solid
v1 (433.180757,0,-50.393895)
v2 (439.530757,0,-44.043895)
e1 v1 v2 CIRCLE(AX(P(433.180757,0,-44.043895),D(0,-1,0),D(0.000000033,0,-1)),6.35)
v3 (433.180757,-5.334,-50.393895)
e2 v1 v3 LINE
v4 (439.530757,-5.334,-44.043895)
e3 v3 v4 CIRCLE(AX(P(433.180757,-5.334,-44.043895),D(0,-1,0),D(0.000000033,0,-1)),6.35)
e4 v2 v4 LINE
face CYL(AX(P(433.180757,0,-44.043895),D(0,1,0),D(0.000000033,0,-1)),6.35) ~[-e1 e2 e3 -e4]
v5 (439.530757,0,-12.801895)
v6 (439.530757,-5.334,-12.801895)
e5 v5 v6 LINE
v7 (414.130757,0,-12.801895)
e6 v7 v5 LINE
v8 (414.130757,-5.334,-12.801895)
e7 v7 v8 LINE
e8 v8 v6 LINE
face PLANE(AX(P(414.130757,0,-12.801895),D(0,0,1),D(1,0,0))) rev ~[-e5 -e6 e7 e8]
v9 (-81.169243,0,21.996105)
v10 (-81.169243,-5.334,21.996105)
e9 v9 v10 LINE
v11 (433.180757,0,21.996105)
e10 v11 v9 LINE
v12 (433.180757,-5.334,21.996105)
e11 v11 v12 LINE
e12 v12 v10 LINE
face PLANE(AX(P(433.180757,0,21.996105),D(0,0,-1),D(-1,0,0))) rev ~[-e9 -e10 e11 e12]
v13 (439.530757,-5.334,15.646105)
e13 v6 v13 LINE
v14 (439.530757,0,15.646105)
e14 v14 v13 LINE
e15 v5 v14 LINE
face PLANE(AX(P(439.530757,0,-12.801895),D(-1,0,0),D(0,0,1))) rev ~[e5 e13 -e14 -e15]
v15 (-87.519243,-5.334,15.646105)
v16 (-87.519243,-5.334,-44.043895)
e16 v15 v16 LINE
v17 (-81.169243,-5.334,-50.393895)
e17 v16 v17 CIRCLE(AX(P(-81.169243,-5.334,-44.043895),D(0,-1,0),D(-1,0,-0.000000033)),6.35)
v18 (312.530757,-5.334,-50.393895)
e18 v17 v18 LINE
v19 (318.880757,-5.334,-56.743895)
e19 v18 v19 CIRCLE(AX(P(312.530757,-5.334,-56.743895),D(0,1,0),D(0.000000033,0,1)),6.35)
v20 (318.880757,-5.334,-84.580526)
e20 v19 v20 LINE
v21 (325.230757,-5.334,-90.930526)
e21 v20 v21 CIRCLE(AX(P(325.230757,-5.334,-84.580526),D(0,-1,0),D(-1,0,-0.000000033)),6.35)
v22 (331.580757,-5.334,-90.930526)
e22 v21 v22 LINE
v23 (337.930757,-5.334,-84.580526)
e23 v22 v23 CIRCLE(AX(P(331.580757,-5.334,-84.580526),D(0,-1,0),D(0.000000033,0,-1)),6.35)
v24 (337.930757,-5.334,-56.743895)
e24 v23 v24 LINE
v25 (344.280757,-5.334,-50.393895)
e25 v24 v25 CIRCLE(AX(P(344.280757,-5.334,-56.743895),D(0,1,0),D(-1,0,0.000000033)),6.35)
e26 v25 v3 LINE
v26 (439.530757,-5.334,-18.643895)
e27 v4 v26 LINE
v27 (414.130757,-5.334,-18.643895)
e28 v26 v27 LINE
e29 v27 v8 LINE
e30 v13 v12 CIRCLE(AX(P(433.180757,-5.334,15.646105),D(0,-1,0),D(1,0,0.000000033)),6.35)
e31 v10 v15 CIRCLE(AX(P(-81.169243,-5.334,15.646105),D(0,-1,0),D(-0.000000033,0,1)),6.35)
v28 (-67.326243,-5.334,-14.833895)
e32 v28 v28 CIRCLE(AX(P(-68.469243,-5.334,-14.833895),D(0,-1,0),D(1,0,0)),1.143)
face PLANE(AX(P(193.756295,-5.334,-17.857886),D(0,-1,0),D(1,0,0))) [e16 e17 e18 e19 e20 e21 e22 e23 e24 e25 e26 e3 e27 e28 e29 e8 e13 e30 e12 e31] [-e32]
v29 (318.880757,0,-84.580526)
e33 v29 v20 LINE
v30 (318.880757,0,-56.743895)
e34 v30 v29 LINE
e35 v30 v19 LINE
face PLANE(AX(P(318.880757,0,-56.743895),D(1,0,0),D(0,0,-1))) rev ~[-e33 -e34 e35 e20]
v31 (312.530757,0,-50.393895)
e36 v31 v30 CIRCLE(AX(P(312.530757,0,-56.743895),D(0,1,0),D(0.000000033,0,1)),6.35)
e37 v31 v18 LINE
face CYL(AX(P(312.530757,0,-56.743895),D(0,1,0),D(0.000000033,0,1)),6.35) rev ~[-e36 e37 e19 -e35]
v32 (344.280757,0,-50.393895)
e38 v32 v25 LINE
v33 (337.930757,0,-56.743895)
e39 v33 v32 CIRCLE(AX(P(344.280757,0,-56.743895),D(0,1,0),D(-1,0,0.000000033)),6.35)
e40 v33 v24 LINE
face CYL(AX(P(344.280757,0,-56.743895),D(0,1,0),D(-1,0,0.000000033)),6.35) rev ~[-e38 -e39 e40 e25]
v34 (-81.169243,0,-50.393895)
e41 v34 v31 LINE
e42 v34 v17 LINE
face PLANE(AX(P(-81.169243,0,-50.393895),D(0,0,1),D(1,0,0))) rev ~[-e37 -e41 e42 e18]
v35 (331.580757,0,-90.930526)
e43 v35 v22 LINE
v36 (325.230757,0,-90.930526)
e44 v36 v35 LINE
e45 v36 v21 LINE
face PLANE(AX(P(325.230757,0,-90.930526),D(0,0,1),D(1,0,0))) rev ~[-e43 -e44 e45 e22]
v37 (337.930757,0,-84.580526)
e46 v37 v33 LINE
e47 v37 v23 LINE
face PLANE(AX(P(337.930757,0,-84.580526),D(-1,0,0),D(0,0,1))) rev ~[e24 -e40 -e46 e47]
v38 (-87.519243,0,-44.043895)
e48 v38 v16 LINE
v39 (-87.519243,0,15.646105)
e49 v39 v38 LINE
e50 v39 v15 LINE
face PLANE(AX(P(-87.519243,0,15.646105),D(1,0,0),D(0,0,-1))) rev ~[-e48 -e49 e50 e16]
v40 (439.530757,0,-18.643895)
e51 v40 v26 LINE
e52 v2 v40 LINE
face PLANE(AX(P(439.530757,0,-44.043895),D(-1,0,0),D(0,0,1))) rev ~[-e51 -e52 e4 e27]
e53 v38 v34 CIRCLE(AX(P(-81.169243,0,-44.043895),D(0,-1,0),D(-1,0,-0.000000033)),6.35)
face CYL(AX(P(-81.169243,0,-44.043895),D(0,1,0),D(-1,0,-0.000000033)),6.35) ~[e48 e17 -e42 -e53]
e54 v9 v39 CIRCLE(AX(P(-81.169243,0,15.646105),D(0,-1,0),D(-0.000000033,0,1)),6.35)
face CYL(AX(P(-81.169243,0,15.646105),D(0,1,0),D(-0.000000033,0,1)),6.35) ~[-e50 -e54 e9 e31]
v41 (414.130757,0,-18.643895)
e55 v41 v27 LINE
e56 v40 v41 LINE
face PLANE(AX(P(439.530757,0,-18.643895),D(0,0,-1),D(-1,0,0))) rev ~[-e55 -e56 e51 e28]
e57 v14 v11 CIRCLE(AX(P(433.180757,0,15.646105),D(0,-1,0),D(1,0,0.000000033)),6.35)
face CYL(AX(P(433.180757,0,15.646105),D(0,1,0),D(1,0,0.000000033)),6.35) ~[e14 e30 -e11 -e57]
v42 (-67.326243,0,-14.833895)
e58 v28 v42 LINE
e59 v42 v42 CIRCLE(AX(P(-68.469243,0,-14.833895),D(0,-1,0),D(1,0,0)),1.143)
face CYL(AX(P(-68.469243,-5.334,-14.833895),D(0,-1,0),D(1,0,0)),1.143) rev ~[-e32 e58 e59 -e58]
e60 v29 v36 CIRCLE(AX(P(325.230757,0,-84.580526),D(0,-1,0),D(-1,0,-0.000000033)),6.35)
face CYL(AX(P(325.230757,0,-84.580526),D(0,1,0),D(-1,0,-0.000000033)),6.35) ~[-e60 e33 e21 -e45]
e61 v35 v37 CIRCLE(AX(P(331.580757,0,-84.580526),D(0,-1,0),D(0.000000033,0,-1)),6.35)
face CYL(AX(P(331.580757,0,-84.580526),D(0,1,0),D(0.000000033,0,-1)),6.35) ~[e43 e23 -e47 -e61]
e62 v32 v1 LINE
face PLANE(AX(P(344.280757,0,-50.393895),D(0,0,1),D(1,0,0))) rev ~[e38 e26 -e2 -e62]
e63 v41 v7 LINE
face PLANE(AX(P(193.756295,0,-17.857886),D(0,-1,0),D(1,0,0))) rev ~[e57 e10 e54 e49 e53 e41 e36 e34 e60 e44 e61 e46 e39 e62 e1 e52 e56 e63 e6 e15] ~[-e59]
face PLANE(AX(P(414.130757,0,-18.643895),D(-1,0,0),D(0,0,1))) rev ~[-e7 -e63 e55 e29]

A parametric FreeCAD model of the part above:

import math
import FreeCAD as App
import Part
import Sketcher

V = App.Vector
Q = App.Units.Quantity

doc = App.newDocument("Part")
body = doc.addObject("PartDesign::Body", "Body")

sketch1 = doc.addObject("Sketcher::SketchObject", "Sketch")
body.addObject(sketch1)
sketch1.AttachmentSupport = (doc.XZ_Plane, [""])
sketch1.MapMode = "FlatFace"
sketch1.addGeometry(Part.LineSegment(V(433, 22, 0), V(-81, 22, 0)), False)
sketch1.addGeometry(Part.ArcOfCircle(Part.Circle(V(-81, 16, 0), V(0, 0, 1), 6), math.radians(90), math.radians(180)), False)
sketch1.addGeometry(Part.LineSegment(V(-88, 16, 0), V(-88, -44, 0)), False)
sketch1.addGeometry(Part.ArcOfCircle(Part.Circle(V(-81, -44, 0), V(0, 0, 1), 6), math.radians(-180), math.radians(-90)), False)
sketch1.addGeometry(Part.LineSegment(V(-81, -50, 0), V(313, -50, 0)), False)
sketch1.addGeometry(Part.ArcOfCircle(Part.Circle(V(313, -57, 0), V(0, 0, 1), 6), math.radians(0), math.radians(90)), False)
sketch1.addGeometry(Part.LineSegment(V(319, -57, 0), V(319, -85, 0)), False)
sketch1.addGeometry(Part.ArcOfCircle(Part.Circle(V(325, -85, 0), V(0, 0, 1), 6), math.radians(-180), math.radians(-90)), False)
sketch1.addGeometry(Part.LineSegment(V(325, -91, 0), V(332, -91, 0)), False)
sketch1.addGeometry(Part.ArcOfCircle(Part.Circle(V(332, -85, 0), V(0, 0, 1), 6), math.radians(-90), math.radians(0)), False)
sketch1.addGeometry(Part.LineSegment(V(338, -85, 0), V(338, -57, 0)), False)
sketch1.addGeometry(Part.ArcOfCircle(Part.Circle(V(344, -57, 0), V(0, 0, 1), 6), math.radians(90), math.radians(180)), False)
sketch1.addGeometry(Part.LineSegment(V(344, -50, 0), V(433, -50, 0)), False)
sketch1.addGeometry(Part.ArcOfCircle(Part.Circle(V(433, -44, 0), V(0, 0, 1), 6), math.radians(-90), math.radians(0)), False)
sketch1.addGeometry(Part.LineSegment(V(440, -44, 0), V(440, -19, 0)), False)
sketch1.addGeometry(Part.LineSegment(V(440, -19, 0), V(414, -19, 0)), False)
sketch1.addGeometry(Part.LineSegment(V(414, -19, 0), V(414, -13, 0)), False)
sketch1.addGeometry(Part.LineSegment(V(414, -13, 0), V(440, -13, 0)), False)
sketch1.addGeometry(Part.LineSegment(V(440, -13, 0), V(440, 16, 0)), False)
sketch1.addGeometry(Part.ArcOfCircle(Part.Circle(V(433, 16, 0), V(0, 0, 1), 6), math.radians(0), math.radians(90)), False)
sketch1.addConstraint(Sketcher.Constraint("Tangent", 0, 2, 1, 1))
sketch1.addConstraint(Sketcher.Constraint("Tangent", 1, 2, 2, 1))
sketch1.addConstraint(Sketcher.Constraint("Tangent", 2, 2, 3, 1))
sketch1.addConstraint(Sketcher.Constraint("Tangent", 3, 2, 4, 1))
sketch1.addConstraint(Sketcher.Constraint("Tangent", 4, 2, 5, 2))
sketch1.addConstraint(Sketcher.Constraint("Tangent", 5, 1, 6, 1))
sketch1.addConstraint(Sketcher.Constraint("Tangent", 6, 2, 7, 1))
sketch1.addConstraint(Sketcher.Constraint("Tangent", 7, 2, 8, 1))
sketch1.addConstraint(Sketcher.Constraint("Tangent", 8, 2, 9, 1))
sketch1.addConstraint(Sketcher.Constraint("Tangent", 9, 2, 10, 1))
sketch1.addConstraint(Sketcher.Constraint("Tangent", 10, 2, 11, 2))
sketch1.addConstraint(Sketcher.Constraint("Tangent", 11, 1, 12, 1))
sketch1.addConstraint(Sketcher.Constraint("Tangent", 12, 2, 13, 1))
sketch1.addConstraint(Sketcher.Constraint("Tangent", 13, 2, 14, 1))
sketch1.addConstraint(Sketcher.Constraint("Coincident", 14, 2, 15, 1))
sketch1.addConstraint(Sketcher.Constraint("Coincident", 15, 2, 16, 1))
sketch1.addConstraint(Sketcher.Constraint("Coincident", 16, 2, 17, 1))
sketch1.addConstraint(Sketcher.Constraint("Coincident", 17, 2, 18, 1))
sketch1.addConstraint(Sketcher.Constraint("Tangent", 18, 2, 19, 1))
sketch1.addConstraint(Sketcher.Constraint("Tangent", 19, 2, 0, 1))
sketch1.addConstraint(Sketcher.Constraint("Horizontal", 0))
sketch1.addConstraint(Sketcher.Constraint("Vertical", 2))
sketch1.addConstraint(Sketcher.Constraint("Horizontal", 4))
sketch1.addConstraint(Sketcher.Constraint("Vertical", 6))
sketch1.addConstraint(Sketcher.Constraint("Horizontal", 8))
sketch1.addConstraint(Sketcher.Constraint("Vertical", 10))
sketch1.addConstraint(Sketcher.Constraint("Horizontal", 12))
sketch1.addConstraint(Sketcher.Constraint("Vertical", 14))
sketch1.addConstraint(Sketcher.Constraint("Horizontal", 15))
sketch1.addConstraint(Sketcher.Constraint("Vertical", 16))
sketch1.addConstraint(Sketcher.Constraint("Horizontal", 17))
sketch1.addConstraint(Sketcher.Constraint("Vertical", 18))
sketch1.addConstraint(Sketcher.Constraint("Equal", 1, 3))
sketch1.addConstraint(Sketcher.Constraint("Equal", 3, 5))
sketch1.addConstraint(Sketcher.Constraint("Equal", 5, 7))
sketch1.addConstraint(Sketcher.Constraint("Equal", 7, 9))
sketch1.addConstraint(Sketcher.Constraint("Equal", 9, 11))
sketch1.addConstraint(Sketcher.Constraint("Equal", 11, 13))
sketch1.addConstraint(Sketcher.Constraint("Equal", 13, 19))
sketch1.addConstraint(Sketcher.Constraint("Horizontal", 5, 3, 11, 3))
sketch1.addConstraint(Sketcher.Constraint("Vertical", 13, 3, 19, 3))
sketch1.addConstraint(Sketcher.Constraint("Equal", 17, 14))
sketch1.addConstraint(Sketcher.Constraint("DistanceX", 15, 2, 15, 1, Q("1 in")))
sketch1.addConstraint(Sketcher.Constraint("Radius", 1, Q("0.25 in")))
sketch1.addConstraint(Sketcher.Constraint("DistanceX", 4, 1, 4, 2, Q("15.5 in")))
sketch1.addConstraint(Sketcher.Constraint("DistanceX", 12, 1, 12, 2, Q("3.5 in")))
sketch1.addConstraint(Sketcher.Constraint("DistanceX", 5, 1, 11, 3, Q("1 in")))
sketch1.addConstraint(Sketcher.Constraint("DistanceY", 2, 2, 2, 1, Q("2.35 in")))
sketch1.addConstraint(Sketcher.Constraint("DistanceY", 16, 1, 16, 2, Q("0.23 in")))
sketch1.addConstraint(Sketcher.Constraint("DistanceY", 6, 2, 6, 1, Q("27.836631 mm")))
sketch1.addConstraint(Sketcher.Constraint("DistanceX", 1, 3, -1, 1, Q("81.169243 mm")))
sketch1.addConstraint(Sketcher.Constraint("DistanceY", -1, 1, 1, 3, Q("15.646105 mm")))
pad1 = doc.addObject("PartDesign::Pad", "Pad")
body.addObject(pad1)
pad1.Profile = sketch1
pad1.Length = Q("0.21 in")

sketch2 = doc.addObject("Sketcher::SketchObject", "Sketch001")
body.addObject(sketch2)
sketch2.AttachmentSupport = (doc.XZ_Plane, [""])
sketch2.MapMode = "FlatFace"
sketch2.AttachmentOffset = App.Placement(V(0, 0, 0.21 * 25.4), App.Rotation())
sketch2.addGeometry(Part.Circle(V(-68.5, -14.8, 0), V(0, 0, 1), 1.1), False)
sketch2.addConstraint(Sketcher.Constraint("Diameter", 0, Q("0.09 in")))
sketch2.addConstraint(Sketcher.Constraint("DistanceX", 0, 3, -1, 1, Q("68.469243 mm")))
sketch2.addConstraint(Sketcher.Constraint("DistanceY", 0, 3, -1, 1, Q("14.833895 mm")))
pocket1 = doc.addObject("PartDesign::Pocket", "Pocket")
body.addObject(pocket1)
pocket1.Profile = sketch2
pocket1.Length = Q("1 in")

doc.recompute()
